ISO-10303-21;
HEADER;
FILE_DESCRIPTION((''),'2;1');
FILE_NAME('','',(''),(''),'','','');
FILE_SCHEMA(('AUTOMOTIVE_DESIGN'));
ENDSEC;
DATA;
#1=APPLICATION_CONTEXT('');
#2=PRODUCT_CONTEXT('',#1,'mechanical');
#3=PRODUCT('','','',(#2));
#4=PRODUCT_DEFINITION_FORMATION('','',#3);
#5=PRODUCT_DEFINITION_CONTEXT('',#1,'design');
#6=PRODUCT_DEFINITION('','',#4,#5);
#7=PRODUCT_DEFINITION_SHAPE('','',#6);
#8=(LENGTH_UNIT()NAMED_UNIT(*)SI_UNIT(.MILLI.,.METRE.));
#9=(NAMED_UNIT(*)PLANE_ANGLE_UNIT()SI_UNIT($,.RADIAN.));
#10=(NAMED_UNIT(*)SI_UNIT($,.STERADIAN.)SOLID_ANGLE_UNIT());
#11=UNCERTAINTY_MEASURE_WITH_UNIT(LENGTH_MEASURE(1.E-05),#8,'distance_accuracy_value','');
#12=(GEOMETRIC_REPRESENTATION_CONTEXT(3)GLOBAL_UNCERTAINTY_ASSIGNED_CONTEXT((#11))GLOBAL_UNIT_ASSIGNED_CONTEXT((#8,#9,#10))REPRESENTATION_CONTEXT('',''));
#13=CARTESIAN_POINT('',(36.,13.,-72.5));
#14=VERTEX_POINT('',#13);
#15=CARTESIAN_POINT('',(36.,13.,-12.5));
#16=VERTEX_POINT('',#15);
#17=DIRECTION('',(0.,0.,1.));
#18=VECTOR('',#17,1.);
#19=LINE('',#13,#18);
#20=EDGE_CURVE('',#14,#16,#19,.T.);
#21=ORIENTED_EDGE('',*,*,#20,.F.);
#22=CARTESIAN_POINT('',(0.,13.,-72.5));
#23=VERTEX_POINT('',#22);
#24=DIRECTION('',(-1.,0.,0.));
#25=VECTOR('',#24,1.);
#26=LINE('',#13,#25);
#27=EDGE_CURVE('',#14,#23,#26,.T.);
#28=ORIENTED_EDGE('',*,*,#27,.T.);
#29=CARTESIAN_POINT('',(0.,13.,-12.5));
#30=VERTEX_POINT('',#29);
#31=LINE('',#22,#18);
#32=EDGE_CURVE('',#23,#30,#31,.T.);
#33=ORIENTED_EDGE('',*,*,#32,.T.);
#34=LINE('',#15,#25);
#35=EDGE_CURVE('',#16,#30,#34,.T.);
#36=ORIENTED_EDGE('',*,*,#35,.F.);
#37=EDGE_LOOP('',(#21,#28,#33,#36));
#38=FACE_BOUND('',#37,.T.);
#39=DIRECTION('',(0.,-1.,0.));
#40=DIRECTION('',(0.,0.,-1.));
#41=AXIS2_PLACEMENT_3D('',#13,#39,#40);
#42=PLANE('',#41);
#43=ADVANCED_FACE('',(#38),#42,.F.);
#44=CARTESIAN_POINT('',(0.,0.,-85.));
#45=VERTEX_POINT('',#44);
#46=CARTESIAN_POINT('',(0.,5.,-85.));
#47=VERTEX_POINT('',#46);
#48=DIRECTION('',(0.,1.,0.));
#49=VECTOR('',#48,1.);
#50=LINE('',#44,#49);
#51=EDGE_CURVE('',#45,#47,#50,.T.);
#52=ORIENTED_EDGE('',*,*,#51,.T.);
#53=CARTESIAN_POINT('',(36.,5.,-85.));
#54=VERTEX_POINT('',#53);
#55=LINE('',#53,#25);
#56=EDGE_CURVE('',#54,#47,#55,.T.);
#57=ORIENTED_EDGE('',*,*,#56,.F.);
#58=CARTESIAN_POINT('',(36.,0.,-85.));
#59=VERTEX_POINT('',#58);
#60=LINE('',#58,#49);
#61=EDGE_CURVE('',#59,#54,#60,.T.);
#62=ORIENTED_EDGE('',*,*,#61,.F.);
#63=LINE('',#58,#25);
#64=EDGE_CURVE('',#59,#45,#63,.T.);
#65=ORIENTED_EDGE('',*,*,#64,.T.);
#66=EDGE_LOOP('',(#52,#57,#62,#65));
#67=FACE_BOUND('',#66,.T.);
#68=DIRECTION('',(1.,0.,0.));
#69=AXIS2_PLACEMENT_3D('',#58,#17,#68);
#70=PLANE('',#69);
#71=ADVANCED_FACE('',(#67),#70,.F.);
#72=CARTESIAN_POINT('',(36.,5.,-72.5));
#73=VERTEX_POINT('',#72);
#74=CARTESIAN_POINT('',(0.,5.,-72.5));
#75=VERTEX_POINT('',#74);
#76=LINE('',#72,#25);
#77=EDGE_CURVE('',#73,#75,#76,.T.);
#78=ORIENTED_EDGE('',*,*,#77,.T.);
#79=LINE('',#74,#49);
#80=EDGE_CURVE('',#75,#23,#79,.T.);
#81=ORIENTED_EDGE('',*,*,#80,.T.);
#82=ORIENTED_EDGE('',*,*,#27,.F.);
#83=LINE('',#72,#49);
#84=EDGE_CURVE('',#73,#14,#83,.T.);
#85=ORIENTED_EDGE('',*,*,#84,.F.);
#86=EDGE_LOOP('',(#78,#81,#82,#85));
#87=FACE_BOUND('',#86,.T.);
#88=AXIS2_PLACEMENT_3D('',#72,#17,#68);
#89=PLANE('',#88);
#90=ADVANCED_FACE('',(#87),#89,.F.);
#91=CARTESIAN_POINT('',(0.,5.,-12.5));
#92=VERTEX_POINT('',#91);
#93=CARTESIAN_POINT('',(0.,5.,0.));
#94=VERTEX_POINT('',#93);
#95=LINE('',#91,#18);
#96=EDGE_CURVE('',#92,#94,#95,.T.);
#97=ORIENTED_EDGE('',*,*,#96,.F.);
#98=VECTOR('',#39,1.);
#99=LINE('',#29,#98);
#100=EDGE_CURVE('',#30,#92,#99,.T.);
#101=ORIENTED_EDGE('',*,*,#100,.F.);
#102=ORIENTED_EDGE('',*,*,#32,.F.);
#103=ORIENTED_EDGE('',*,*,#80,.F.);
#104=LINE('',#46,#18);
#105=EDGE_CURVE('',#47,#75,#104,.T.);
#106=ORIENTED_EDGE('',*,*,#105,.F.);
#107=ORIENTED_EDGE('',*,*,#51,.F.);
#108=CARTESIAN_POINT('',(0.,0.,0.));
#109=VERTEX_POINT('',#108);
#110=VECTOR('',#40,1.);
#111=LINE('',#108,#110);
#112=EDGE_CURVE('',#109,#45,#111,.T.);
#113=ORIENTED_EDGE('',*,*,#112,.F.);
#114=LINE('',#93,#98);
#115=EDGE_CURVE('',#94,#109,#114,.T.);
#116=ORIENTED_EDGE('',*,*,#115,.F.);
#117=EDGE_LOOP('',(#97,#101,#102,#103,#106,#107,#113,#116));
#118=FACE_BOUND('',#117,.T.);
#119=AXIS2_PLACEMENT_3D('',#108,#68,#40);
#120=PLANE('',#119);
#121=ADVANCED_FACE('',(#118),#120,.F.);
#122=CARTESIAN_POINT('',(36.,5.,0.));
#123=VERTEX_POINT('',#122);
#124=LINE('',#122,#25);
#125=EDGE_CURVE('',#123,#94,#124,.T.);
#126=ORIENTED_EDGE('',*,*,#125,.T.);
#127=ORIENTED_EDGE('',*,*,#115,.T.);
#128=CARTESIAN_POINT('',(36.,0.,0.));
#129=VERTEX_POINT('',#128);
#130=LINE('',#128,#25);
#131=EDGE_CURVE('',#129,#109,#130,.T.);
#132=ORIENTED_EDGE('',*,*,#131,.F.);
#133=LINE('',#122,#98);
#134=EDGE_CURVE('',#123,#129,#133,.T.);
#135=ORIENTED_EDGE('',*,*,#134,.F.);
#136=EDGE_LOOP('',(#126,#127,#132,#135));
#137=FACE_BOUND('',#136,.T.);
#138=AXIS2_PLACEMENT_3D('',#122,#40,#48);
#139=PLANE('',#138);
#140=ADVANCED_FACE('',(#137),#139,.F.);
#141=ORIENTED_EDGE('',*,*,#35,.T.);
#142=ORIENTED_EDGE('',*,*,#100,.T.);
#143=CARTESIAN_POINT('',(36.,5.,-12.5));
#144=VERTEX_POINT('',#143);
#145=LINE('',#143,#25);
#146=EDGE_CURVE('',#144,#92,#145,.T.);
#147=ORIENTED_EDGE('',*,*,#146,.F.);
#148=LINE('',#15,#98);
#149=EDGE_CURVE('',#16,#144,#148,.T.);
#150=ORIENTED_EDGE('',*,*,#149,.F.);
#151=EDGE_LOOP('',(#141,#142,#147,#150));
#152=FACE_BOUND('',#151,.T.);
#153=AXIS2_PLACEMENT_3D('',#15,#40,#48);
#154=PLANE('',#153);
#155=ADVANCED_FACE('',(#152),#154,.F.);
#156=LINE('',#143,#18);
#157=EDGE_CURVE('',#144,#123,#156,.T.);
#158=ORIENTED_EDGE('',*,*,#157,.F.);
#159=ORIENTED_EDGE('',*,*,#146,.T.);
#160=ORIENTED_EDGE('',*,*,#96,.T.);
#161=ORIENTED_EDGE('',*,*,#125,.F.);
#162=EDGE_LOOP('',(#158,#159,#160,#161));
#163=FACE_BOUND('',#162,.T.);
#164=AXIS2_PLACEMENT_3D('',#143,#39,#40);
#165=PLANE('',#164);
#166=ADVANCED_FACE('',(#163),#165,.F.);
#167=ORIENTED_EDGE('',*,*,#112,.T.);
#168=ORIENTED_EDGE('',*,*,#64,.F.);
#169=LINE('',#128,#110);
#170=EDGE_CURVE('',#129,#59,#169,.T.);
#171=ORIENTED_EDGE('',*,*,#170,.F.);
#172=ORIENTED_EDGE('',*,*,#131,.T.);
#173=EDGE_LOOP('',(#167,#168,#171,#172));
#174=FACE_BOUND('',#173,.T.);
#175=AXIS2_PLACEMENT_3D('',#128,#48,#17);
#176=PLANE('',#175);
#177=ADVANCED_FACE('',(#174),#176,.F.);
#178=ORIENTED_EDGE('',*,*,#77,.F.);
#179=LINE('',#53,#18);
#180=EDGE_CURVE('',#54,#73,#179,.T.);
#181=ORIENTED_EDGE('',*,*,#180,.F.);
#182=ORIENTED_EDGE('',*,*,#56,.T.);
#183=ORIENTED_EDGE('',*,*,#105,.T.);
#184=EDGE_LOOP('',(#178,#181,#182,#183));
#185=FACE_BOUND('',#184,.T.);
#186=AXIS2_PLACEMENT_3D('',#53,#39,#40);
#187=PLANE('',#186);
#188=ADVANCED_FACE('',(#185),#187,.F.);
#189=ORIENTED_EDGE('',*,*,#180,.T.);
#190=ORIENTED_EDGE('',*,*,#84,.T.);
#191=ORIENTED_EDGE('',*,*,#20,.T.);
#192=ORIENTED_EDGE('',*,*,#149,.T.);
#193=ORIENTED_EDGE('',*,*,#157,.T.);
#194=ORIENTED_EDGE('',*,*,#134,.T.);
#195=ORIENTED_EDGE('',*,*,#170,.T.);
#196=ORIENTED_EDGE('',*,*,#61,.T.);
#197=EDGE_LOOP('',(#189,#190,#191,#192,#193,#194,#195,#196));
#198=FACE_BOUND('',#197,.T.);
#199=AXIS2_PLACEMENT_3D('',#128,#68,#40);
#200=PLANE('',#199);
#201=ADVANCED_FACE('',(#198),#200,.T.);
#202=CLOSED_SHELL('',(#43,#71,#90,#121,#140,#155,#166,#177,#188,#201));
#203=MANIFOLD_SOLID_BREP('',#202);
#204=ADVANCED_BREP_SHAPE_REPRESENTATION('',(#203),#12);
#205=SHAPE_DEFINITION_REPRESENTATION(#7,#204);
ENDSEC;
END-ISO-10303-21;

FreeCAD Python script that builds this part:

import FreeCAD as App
import Part
import Sketcher
from FreeCAD import Vector

doc = App.newDocument("Part")
params = doc.addObject("Spreadsheet::Sheet", "Params")
for row, (alias, value) in enumerate([
    ("sketch1_width", "5 mm"),
    ("sketch1_width2", "8 mm"),
    ("sketch1_height", "85 mm"),
    ("sketch1_height2", "60 mm"),
    ("pad1_length", "36 mm"),
], start=1):
    params.set(f"A{row}", alias)
    params.set(f"B{row}", "=" + value)
    params.setAlias(f"B{row}", alias)

body = doc.addObject("PartDesign::Body", "Body")

# Sketch on YZ plane
sketch1 = body.newObject("Sketcher::SketchObject", "Sketch")
sketch1.AttachmentSupport = (doc.getObject("YZ_Plane"), [""])
sketch1.MapMode = "FlatFace"
sketch1.addGeometry(Part.LineSegment(Vector(0, 0, 0), Vector(0, -85, 0)), False)
sketch1.addGeometry(Part.LineSegment(Vector(0, -85, 0), Vector(5, -85, 0)), False)
sketch1.addGeometry(Part.LineSegment(Vector(5, -85, 0), Vector(5, -72, 0)), False)
sketch1.addGeometry(Part.LineSegment(Vector(5, -72, 0), Vector(13, -72, 0)), False)
sketch1.addGeometry(Part.LineSegment(Vector(13, -72, 0), Vector(13, -12, 0)), False)
sketch1.addGeometry(Part.LineSegment(Vector(13, -12, 0), Vector(5, -12, 0)), False)
sketch1.addGeometry(Part.LineSegment(Vector(5, -12, 0), Vector(5, 0, 0)), False)
sketch1.addGeometry(Part.LineSegment(Vector(5, 0, 0), Vector(0, 0, 0)), False)
sketch1.addConstraint(Sketcher.Constraint("Coincident", 0, 2, 1, 1))
sketch1.addConstraint(Sketcher.Constraint("Coincident", 1, 2, 2, 1))
sketch1.addConstraint(Sketcher.Constraint("Coincident", 2, 2, 3, 1))
sketch1.addConstraint(Sketcher.Constraint("Coincident", 3, 2, 4, 1))
sketch1.addConstraint(Sketcher.Constraint("Coincident", 4, 2, 5, 1))
sketch1.addConstraint(Sketcher.Constraint("Coincident", 5, 2, 6, 1))
sketch1.addConstraint(Sketcher.Constraint("Coincident", 6, 2, 7, 1))
sketch1.addConstraint(Sketcher.Constraint("Coincident", 7, 2, 0, 1))
sketch1.addConstraint(Sketcher.Constraint("Vertical", 0))
sketch1.addConstraint(Sketcher.Constraint("Horizontal", 1))
sketch1.addConstraint(Sketcher.Constraint("Vertical", 2))
sketch1.addConstraint(Sketcher.Constraint("Horizontal", 3))
sketch1.addConstraint(Sketcher.Constraint("Vertical", 4))
sketch1.addConstraint(Sketcher.Constraint("Horizontal", 5))
sketch1.addConstraint(Sketcher.Constraint("Vertical", 6))
sketch1.addConstraint(Sketcher.Constraint("Horizontal", 7))
sketch1.addConstraint(Sketcher.Constraint("Coincident", 7, 2, -1, 1))
sketch1.addConstraint(Sketcher.Constraint("Vertical", 2, 2, 5, 2))
sketch1.addConstraint(Sketcher.Constraint("Equal", 2, 6))
sketch1.addConstraint(Sketcher.Constraint("DistanceX", 1, 1, 1, 2, 5.0))
sketch1.addConstraint(Sketcher.Constraint("DistanceX", 3, 1, 3, 2, 8.0))
sketch1.addConstraint(Sketcher.Constraint("DistanceY", 0, 2, 0, 1, 85.0))
sketch1.addConstraint(Sketcher.Constraint("DistanceY", 4, 1, 4, 2, 60.0))
sketch1.setExpression("Constraints[19]", "Params.sketch1_width")
sketch1.setExpression("Constraints[20]", "Params.sketch1_width2")
sketch1.setExpression("Constraints[21]", "Params.sketch1_height")
sketch1.setExpression("Constraints[22]", "Params.sketch1_height2")
pad1 = body.newObject("PartDesign::Pad", "Pad")
pad1.Profile = sketch1
pad1.setExpression("Length", "Params.pad1_length")

doc.recompute()
